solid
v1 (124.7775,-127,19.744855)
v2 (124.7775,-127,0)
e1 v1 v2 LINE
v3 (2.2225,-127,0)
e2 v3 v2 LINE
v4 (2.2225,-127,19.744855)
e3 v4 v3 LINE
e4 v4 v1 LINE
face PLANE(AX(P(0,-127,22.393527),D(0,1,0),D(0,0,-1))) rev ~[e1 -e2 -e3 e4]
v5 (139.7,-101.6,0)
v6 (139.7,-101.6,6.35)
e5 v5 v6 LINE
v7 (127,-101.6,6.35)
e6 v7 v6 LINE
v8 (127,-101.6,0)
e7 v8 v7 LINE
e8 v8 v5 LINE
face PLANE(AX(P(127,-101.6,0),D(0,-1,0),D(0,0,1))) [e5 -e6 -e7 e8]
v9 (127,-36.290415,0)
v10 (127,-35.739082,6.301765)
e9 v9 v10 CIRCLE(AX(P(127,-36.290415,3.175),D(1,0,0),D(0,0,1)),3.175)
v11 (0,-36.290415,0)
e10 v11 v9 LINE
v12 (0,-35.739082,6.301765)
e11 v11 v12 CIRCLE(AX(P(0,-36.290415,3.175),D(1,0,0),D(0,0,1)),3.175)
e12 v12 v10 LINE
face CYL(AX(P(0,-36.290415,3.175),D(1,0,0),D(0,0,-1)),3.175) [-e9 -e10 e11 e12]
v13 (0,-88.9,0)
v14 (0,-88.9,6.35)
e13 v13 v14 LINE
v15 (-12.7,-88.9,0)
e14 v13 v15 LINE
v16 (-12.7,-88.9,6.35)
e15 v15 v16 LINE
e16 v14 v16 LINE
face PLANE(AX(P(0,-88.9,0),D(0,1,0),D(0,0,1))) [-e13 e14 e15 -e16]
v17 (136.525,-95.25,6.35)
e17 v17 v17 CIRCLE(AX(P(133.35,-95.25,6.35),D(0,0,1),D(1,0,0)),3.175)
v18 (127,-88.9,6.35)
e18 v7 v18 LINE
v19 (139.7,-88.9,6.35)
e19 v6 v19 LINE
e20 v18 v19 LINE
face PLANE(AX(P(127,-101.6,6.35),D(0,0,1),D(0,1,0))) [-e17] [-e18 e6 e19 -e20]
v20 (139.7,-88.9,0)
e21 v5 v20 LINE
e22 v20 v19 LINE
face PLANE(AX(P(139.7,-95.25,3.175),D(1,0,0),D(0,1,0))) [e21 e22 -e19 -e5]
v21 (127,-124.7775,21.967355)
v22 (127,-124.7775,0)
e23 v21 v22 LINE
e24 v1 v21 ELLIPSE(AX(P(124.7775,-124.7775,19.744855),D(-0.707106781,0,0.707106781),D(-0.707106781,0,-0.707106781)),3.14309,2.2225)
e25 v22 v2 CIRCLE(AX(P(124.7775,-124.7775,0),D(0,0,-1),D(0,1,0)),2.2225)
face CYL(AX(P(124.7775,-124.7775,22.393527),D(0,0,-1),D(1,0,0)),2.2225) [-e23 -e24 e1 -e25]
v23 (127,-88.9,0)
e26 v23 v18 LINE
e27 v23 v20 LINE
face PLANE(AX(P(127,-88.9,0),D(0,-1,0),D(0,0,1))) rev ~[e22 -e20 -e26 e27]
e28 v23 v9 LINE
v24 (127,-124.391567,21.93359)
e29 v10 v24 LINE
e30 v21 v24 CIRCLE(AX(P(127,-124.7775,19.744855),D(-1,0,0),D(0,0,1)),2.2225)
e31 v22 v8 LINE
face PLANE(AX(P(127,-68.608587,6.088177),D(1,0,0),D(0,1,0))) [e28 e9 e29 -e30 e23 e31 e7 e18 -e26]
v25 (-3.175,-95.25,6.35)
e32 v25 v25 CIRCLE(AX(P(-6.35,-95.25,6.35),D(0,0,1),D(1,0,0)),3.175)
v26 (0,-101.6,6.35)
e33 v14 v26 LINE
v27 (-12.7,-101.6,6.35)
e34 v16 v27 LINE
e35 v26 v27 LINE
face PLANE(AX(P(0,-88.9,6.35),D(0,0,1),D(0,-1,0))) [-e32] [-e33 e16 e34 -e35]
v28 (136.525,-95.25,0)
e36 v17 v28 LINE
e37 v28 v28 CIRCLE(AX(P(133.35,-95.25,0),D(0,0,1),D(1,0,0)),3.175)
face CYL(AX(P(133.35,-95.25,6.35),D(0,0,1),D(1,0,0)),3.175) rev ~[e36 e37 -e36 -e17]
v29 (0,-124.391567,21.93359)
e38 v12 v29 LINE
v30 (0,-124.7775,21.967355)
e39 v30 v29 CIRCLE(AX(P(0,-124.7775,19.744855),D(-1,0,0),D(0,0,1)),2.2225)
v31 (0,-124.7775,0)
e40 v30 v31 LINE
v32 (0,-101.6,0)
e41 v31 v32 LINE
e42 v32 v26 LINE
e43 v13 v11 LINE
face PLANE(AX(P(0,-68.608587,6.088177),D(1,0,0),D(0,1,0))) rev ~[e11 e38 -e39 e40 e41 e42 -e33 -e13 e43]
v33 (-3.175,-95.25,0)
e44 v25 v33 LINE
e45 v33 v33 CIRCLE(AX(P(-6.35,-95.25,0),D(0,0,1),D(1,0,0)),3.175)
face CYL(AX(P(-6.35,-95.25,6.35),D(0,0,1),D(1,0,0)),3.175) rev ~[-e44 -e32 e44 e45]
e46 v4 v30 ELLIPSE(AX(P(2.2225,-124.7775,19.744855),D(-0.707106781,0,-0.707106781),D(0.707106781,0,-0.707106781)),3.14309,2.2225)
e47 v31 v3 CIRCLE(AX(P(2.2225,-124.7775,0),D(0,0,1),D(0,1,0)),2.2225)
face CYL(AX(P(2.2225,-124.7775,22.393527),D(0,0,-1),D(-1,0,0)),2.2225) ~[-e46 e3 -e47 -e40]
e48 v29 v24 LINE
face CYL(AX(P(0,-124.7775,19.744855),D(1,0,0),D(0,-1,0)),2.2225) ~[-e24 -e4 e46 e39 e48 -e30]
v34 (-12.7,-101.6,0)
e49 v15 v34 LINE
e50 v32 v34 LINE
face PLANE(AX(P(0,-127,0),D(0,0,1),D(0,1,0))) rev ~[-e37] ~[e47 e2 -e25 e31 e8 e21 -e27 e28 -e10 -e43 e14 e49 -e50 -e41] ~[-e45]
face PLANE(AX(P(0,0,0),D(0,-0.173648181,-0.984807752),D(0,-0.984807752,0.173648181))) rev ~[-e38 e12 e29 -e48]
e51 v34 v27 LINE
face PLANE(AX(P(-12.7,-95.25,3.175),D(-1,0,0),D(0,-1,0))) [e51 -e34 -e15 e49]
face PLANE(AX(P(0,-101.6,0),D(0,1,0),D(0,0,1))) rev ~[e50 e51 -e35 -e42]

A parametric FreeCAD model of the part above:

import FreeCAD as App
import Part
import Sketcher

V = App.Vector
Q = App.Units.Quantity


def edges_at(feature, points):
    """Names of the edges that pass closest to the given points."""
    edges = feature.Shape.Edges
    near = lambda p: min(range(len(edges)), key=lambda i: edges[i].distToShape(Part.Vertex(*p))[0])
    return sorted({f"Edge{near(p) + 1}" for p in points})

doc = App.newDocument("Part")
body = doc.addObject("PartDesign::Body", "Body")

sketch1 = doc.addObject("Sketcher::SketchObject", "Sketch")
body.addObject(sketch1)
sketch1.AttachmentSupport = (doc.YZ_Plane, [""])
sketch1.MapMode = "FlatFace"
sketch1.addGeometry([
    Part.LineSegment(V(-127, 0, 0), V(0, 0, 0)),
    Part.LineSegment(V(0, 0, 0), V(-127, 22.393527, 0)),
    Part.LineSegment(V(-127, 22.393527, 0), V(-127, 0, 0)),
], False)
sketch1.addConstraint([
    Sketcher.Constraint("Coincident", 0, 2, 1, 1),
    Sketcher.Constraint("Coincident", 1, 2, 2, 1),
    Sketcher.Constraint("Coincident", 2, 2, 0, 1),
    Sketcher.Constraint("Horizontal", 0),
    Sketcher.Constraint("Vertical", 2),
    Sketcher.Constraint("Coincident", 0, 2, -1, 1),
    Sketcher.Constraint("DistanceX", 0, 1, 0, 2, Q("5 in")),
    Sketcher.Constraint("Angle", 1, Q("170 deg")),
])
pad1 = doc.addObject("PartDesign::Pad", "Pad")
body.addObject(pad1)
pad1.Profile = sketch1
pad1.Length = Q("5 in")

sketch2 = doc.addObject("Sketcher::SketchObject", "Sketch001")
body.addObject(sketch2)
sketch2.AttachmentSupport = (doc.YZ_Plane, [""])
sketch2.MapMode = "FlatFace"
sketch2.AttachmentOffset = App.Placement(V(0, 0, 5 * 25.4), App.Rotation())
sketch2.addGeometry([
    Part.LineSegment(V(-101.6, 6.35, 0), V(-101.6, 0, 0)),
    Part.LineSegment(V(-101.6, 0, 0), V(-88.9, 0, 0)),
    Part.LineSegment(V(-88.9, 0, 0), V(-88.9, 6.35, 0)),
    Part.LineSegment(V(-88.9, 6.35, 0), V(-101.6, 6.35, 0)),
], False)
sketch2.addConstraint([
    Sketcher.Constraint("Coincident", 0, 2, 1, 1),
    Sketcher.Constraint("Coincident", 1, 2, 2, 1),
    Sketcher.Constraint("Coincident", 2, 2, 3, 1),
    Sketcher.Constraint("Coincident", 3, 2, 0, 1),
    Sketcher.Constraint("Vertical", 0),
    Sketcher.Constraint("Horizontal", 1),
    Sketcher.Constraint("Vertical", 2),
    Sketcher.Constraint("Horizontal", 3),
    Sketcher.Constraint("PointOnObject", 0, 2, -1),
    Sketcher.Constraint("DistanceX", 1, 1, 1, 2, Q("0.5 in")),
    Sketcher.Constraint("DistanceX", 0, 2, -1, 1, Q("4 in")),
    Sketcher.Constraint("DistanceY", 0, 2, 0, 1, Q("0.25 in")),
])
pad2 = doc.addObject("PartDesign::Pad", "Pad001")
body.addObject(pad2)
pad2.Profile = sketch2
pad2.Length = Q("0.5 in")

sketch3 = doc.addObject("Sketcher::SketchObject", "Sketch002")
body.addObject(sketch3)
sketch3.AttachmentSupport = (doc.YZ_Plane, [""])
sketch3.MapMode = "FlatFace"
sketch3.addGeometry([
    Part.LineSegment(V(-88.9, 6.35, 0), V(-88.9, 0, 0)),
    Part.LineSegment(V(-88.9, 0, 0), V(-101.6, 0, 0)),
    Part.LineSegment(V(-101.6, 0, 0), V(-101.6, 6.35, 0)),
    Part.LineSegment(V(-101.6, 6.35, 0), V(-88.9, 6.35, 0)),
], False)
sketch3.addConstraint([
    Sketcher.Constraint("Coincident", 0, 2, 1, 1),
    Sketcher.Constraint("Coincident", 1, 2, 2, 1),
    Sketcher.Constraint("Coincident", 2, 2, 3, 1),
    Sketcher.Constraint("Coincident", 3, 2, 0, 1),
    Sketcher.Constraint("Vertical", 0),
    Sketcher.Constraint("Horizontal", 1),
    Sketcher.Constraint("Vertical", 2),
    Sketcher.Constraint("Horizontal", 3),
    Sketcher.Constraint("PointOnObject", 0, 2, -1),
    Sketcher.Constraint("DistanceX", 1, 2, 1, 1, Q("0.5 in")),
    Sketcher.Constraint("DistanceX", 1, 2, -1, 1, Q("4 in")),
    Sketcher.Constraint("DistanceY", 0, 2, 0, 1, Q("0.25 in")),
])
pad3 = doc.addObject("PartDesign::Pad", "Pad002")
body.addObject(pad3)
pad3.Profile = sketch3
pad3.Length = Q("0.5 in")
pad3.Reversed = True

sketch4 = doc.addObject("Sketcher::SketchObject", "Sketch003")
body.addObject(sketch4)
sketch4.AttachmentSupport = (doc.XY_Plane, [""])
sketch4.MapMode = "FlatFace"
sketch4.AttachmentOffset = App.Placement(V(0, 0, 0.25 * 25.4), App.Rotation())
sketch4.addGeometry(Part.Circle(V(-6.35, -95.25, 0), V(0, 0, 1), 3.175), False)
sketch4.addConstraint([
    Sketcher.Constraint("Diameter", 0, Q("0.25 in")),
    Sketcher.Constraint("DistanceX", 0, 3, -1, 1, Q("0.25 in")),
    Sketcher.Constraint("DistanceY", 0, 3, -1, 1, Q("3.75 in")),
])
pocket1 = doc.addObject("PartDesign::Pocket", "Pocket")
body.addObject(pocket1)
pocket1.Profile = sketch4
pocket1.Type = "ThroughAll"

sketch5 = doc.addObject("Sketcher::SketchObject", "Sketch004")
body.addObject(sketch5)
sketch5.AttachmentSupport = (doc.XY_Plane, [""])
sketch5.MapMode = "FlatFace"
sketch5.AttachmentOffset = App.Placement(V(0, 0, 0.25 * 25.4), App.Rotation())
sketch5.addGeometry(Part.Circle(V(133.35, -95.25, 0), V(0, 0, 1), 3.175), False)
sketch5.addConstraint([
    Sketcher.Constraint("Diameter", 0, Q("0.25 in")),
    Sketcher.Constraint("DistanceX", -1, 1, 0, 3, Q("5.25 in")),
    Sketcher.Constraint("DistanceY", 0, 3, -1, 1, Q("3.75 in")),
])
pocket2 = doc.addObject("PartDesign::Pocket", "Pocket001")
body.addObject(pocket2)
pocket2.Profile = sketch5
pocket2.Type = "ThroughAll"
doc.recompute()

fillet = doc.addObject("PartDesign::Fillet", "Fillet")
body.addObject(fillet)
fillet.Base = (pocket2, edges_at(pocket2, [(63.5, 0, 0)]))
fillet.Radius = Q("0.125 in")
doc.recompute()

fillet2 = doc.addObject("PartDesign::Fillet", "Fillet001")
body.addObject(fillet2)
fillet2.Base = (fillet, edges_at(fillet, [(63.5, -127, 22.394), (127, -127, 11.197), (0, -127, 11.197)]))
fillet2.Radius = Q("0.0875 in")

doc.recompute()
